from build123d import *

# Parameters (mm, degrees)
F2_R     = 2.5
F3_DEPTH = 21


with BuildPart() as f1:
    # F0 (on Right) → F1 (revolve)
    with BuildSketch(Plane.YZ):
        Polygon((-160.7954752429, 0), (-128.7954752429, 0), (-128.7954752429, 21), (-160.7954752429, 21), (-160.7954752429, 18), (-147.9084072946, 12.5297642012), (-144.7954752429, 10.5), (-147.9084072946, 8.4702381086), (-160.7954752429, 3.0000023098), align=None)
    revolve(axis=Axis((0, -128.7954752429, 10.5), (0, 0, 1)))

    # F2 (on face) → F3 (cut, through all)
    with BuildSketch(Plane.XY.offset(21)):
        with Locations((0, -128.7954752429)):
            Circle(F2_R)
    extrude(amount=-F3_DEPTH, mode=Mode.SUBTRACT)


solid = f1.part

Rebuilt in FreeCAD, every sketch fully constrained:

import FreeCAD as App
import Part
import Sketcher
Q = App.Units.Quantity


def add_polygon(sketch, points):
    """Adds a closed chain of lines whose ends are joined by coincident constraints."""
    first, n = sketch.GeometryCount, len(points)
    for a, b in zip(points, points[1:] + points[:1]):
        sketch.addGeometry(Part.LineSegment(App.Vector(*a, 0), App.Vector(*b, 0)), False)
    for i in range(n):
        sketch.addConstraint(Sketcher.Constraint("Coincident", first + i, 2, first + (i + 1) % n, 1))

doc = App.newDocument("Part")
params = doc.addObject("Spreadsheet::Sheet", "Params")
for row, (alias, value) in enumerate([
    ("sketch1_width", "32 mm"),
    ("sketch1_height", "21 mm"),
    ("sketch1_height2", "3 mm"),
    ("sketch1_length", "14 mm"),
    ("revolution_angle", "360 deg"),
    ("sketch2_diameter", "5 mm"),
], start=1):
    params.set(f"A{row}", alias)
    params.set(f"B{row}", "=" + value)
    params.setAlias(f"B{row}", alias)

body = doc.addObject("PartDesign::Body", "Body")

# Sketch on YZ plane
sketch1 = body.newObject("Sketcher::SketchObject", "Sketch")
sketch1.AttachmentSupport = (doc.getObject("YZ_Plane"), [""])
sketch1.MapMode = "FlatFace"
add_polygon(sketch1, [(-160.8, 0), (-128.8, 0), (-128.8, 21), (-160.8, 21), (-160.8, 18), (-147.9, 12.5), (-144.8, 10.5), (-147.9, 8.5), (-160.8, 3)])  # lines 0-8
sketch1.addGeometry(Part.LineSegment(App.Vector(-128.8, 0, 0), App.Vector(-128.8, 21, 0)), True)  # axis
sketch1.addConstraint([
    Sketcher.Constraint("Horizontal", 0),
    Sketcher.Constraint("Vertical", 1),
    Sketcher.Constraint("Horizontal", 2),
    Sketcher.Constraint("Vertical", 3),
    Sketcher.Constraint("Vertical", 8),
    Sketcher.Constraint("Vertical", 9),
    Sketcher.Constraint("Coincident", 9, 1, 0, 2),
    Sketcher.Constraint("PointOnObject", 0, 2, -1),
    Sketcher.Constraint("Horizontal", 2, 2, 9, 2),
    Sketcher.Constraint("Vertical", 4, 2, 6, 2),
    Sketcher.Constraint("Vertical", 3, 2, 7, 2),
    Sketcher.Constraint("Equal", 5, 6),
    Sketcher.Constraint("Equal", 4, 7),
    Sketcher.Constraint("DistanceX", 0, 1, 0, 2, 32.0),
    Sketcher.Constraint("DistanceY", 1, 1, 1, 2, 21.0),
    Sketcher.Constraint("DistanceY", 3, 2, 3, 1, 3.0),
    Sketcher.Constraint("Angle", 4, Q("-23 deg")),
    Sketcher.Constraint("Distance", 4, 14.0),
    Sketcher.Constraint("DistanceX", 3, 2, 5, 2, 16.0),
    Sketcher.Constraint("DistanceY", -1, 1, 5, 2, 10.5),
    Sketcher.Constraint("DistanceX", 0, 2, -1, 1, 128.795475),
])
sketch1.setExpression("Constraints[22]", "Params.sketch1_width")
sketch1.setExpression("Constraints[23]", "Params.sketch1_height")
sketch1.setExpression("Constraints[24]", "Params.sketch1_height2")
sketch1.setExpression("Constraints[26]", "Params.sketch1_length")
revolution = body.newObject("PartDesign::Revolution", "Revolution")
revolution.Profile = sketch1
revolution.ReferenceAxis = (sketch1, ["Axis0"])
revolution.setExpression("Angle", "Params.revolution_angle")

# Sketch on XY plane
sketch2 = body.newObject("Sketcher::SketchObject", "Sketch001")
sketch2.AttachmentSupport = (doc.getObject("XY_Plane"), [""])
sketch2.MapMode = "FlatFace"
sketch2.AttachmentOffset = App.Placement(App.Vector(0, 0, 21), App.Rotation())
sketch2.addGeometry(Part.Circle(App.Vector(0, -128.8, 0), App.Vector(0, 0, 1), 2.5), False)
sketch2.addConstraint([
    Sketcher.Constraint("PointOnObject", 0, 3, -2),
    Sketcher.Constraint("Diameter", 0, 5.0),
    Sketcher.Constraint("DistanceY", 0, 3, -1, 1, 128.795475),
])
sketch2.setExpression("Constraints[1]", "Params.sketch2_diameter")
pocket1 = body.newObject("PartDesign::Pocket", "Pocket")
pocket1.Profile = sketch2
pocket1.Type = "ThroughAll"

doc.recompute()
